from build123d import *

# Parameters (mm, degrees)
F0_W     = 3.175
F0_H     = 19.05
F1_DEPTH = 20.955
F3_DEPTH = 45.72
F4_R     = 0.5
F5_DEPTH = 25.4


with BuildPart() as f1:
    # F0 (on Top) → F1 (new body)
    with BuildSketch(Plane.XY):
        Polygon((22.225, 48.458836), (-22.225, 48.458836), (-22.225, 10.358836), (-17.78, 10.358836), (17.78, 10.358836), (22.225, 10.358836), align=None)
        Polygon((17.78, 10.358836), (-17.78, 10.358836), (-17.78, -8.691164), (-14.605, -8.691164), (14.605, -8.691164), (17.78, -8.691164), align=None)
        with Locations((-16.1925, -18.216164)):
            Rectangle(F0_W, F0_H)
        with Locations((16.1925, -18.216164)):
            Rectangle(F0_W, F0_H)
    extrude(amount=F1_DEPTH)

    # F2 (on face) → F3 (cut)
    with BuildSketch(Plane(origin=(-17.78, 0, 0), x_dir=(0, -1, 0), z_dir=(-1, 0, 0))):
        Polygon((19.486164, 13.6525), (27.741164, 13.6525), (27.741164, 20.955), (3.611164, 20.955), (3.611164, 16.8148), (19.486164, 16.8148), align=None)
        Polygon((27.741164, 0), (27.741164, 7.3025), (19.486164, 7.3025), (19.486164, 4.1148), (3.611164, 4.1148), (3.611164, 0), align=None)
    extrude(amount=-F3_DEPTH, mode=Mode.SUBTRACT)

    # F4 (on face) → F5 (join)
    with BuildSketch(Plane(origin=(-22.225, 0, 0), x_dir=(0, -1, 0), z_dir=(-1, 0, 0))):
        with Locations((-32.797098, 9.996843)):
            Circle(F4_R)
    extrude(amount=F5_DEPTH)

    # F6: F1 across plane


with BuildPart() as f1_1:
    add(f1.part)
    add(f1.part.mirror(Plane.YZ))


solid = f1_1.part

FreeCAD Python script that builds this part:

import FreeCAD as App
import Part
import Sketcher
from FreeCAD import Vector
Q = App.Units.Quantity


def add_polygon(sketch, points):
    """Adds a closed chain of lines whose ends are joined by coincident constraints."""
    first, n = sketch.GeometryCount, len(points)
    for a, b in zip(points, points[1:] + points[:1]):
        sketch.addGeometry(Part.LineSegment(App.Vector(*a, 0), App.Vector(*b, 0)), False)
    for i in range(n):
        sketch.addConstraint(Sketcher.Constraint("Coincident", first + i, 2, first + (i + 1) % n, 1))

doc = App.newDocument("Part")
params = doc.addObject("Spreadsheet::Sheet", "Params")
for row, (alias, value) in enumerate([
    ("sketch1_height", "1.5 in"),
    ("sketch1_width", "1.75 in"),
    ("sketch1_width2", "1.15 in"),
    ("sketch1_height2", "0.75 in"),
    ("pad1_length", "0.825 in"),
    ("sketch2_width", "0.95 in"),
    ("sketch2_width2", "0.325 in"),
    ("sketch2_height", "0.163 in"),
    ("sketch2_height2", "0.162 in"),
    ("pocket1_length", "1.8 in"),
    ("pad2_length", "1 in"),
], start=1):
    params.set(f"A{row}", alias)
    params.set(f"B{row}", "=" + value)
    params.setAlias(f"B{row}", alias)

body = doc.addObject("PartDesign::Body", "Body")

sketch1 = body.newObject("Sketcher::SketchObject", "Sketch")
sketch1.AttachmentSupport = (doc.getObject("XY_Plane"), [""])
sketch1.MapMode = "FlatFace"
add_polygon(sketch1, [(22.2, 48.5), (-22.2, 48.5), (-22.2, 10.4), (-17.8, 10.4), (-17.8, -27.7), (-14.6, -27.7), (-14.6, -8.7), (14.6, -8.7), (14.6, -27.7), (17.8, -27.7), (17.8, 10.4), (22.2, 10.4)])
sketch1.addConstraint([
    Sketcher.Constraint("Horizontal", 0),
    Sketcher.Constraint("Vertical", 1),
    Sketcher.Constraint("Horizontal", 2),
    Sketcher.Constraint("Vertical", 3),
    Sketcher.Constraint("Horizontal", 4),
    Sketcher.Constraint("Vertical", 5),
    Sketcher.Constraint("Horizontal", 6),
    Sketcher.Constraint("Vertical", 7),
    Sketcher.Constraint("Horizontal", 8),
    Sketcher.Constraint("Vertical", 9),
    Sketcher.Constraint("Horizontal", 10),
    Sketcher.Constraint("Vertical", 11),
    Sketcher.Constraint("Symmetric", 4, 2, 7, 2, -2),
    Sketcher.Constraint("Symmetric", 2, 2, 9, 2, -2),
    Sketcher.Constraint("Equal", 2, 10),
    Sketcher.Constraint("Equal", 1, 3),
    Sketcher.Constraint("DistanceY", 1, 2, 1, 1, Q("1.5 in")),
    Sketcher.Constraint("DistanceX", 0, 2, 0, 1, Q("1.75 in")),
    Sketcher.Constraint("DistanceX", 6, 1, 6, 2, Q("1.15 in")),
    Sketcher.Constraint("DistanceY", 5, 1, 5, 2, Q("0.75 in")),
    Sketcher.Constraint("DistanceX", 2, 2, -1, 1, Q("0.7 in")),
    Sketcher.Constraint("DistanceY", -1, 1, 0, 2, 48.458836),
])
sketch1.setExpression("Constraints[28]", "Params.sketch1_height")
sketch1.setExpression("Constraints[29]", "Params.sketch1_width")
sketch1.setExpression("Constraints[30]", "Params.sketch1_width2")
sketch1.setExpression("Constraints[31]", "Params.sketch1_height2")
pad1 = body.newObject("PartDesign::Pad", "Pad")
pad1.Profile = sketch1
pad1.setExpression("Length", "Params.pad1_length")

sketch2 = body.newObject("Sketcher::SketchObject", "Sketch001")
sketch2.AttachmentSupport = (doc.getObject("YZ_Plane"), [""])
sketch2.MapMode = "FlatFace"
sketch2.AttachmentOffset = App.Placement(Vector(0, 0, -0.7 * 25.4), App.Rotation())
add_polygon(sketch2, [(-19.5, 13.7), (-27.7, 13.7), (-27.7, 21), (-3.6, 21), (-3.6, 16.8), (-19.5, 16.8)])
add_polygon(sketch2, [(-27.7, 0), (-27.7, 7.3), (-19.5, 7.3), (-19.5, 4.1), (-3.6, 4.1), (-3.6, 0)])
sketch2.addConstraint([
    Sketcher.Constraint("Horizontal", 0),
    Sketcher.Constraint("Vertical", 1),
    Sketcher.Constraint("Horizontal", 2),
    Sketcher.Constraint("Vertical", 3),
    Sketcher.Constraint("Horizontal", 4),
    Sketcher.Constraint("Vertical", 5),
    Sketcher.Constraint("Vertical", 6),
    Sketcher.Constraint("Horizontal", 7),
    Sketcher.Constraint("Vertical", 8),
    Sketcher.Constraint("Horizontal", 9),
    Sketcher.Constraint("Vertical", 10),
    Sketcher.Constraint("Horizontal", 11),
    Sketcher.Constraint("PointOnObject", 10, 2, -1),
    Sketcher.Constraint("Vertical", 1, 2, 6, 2),
    Sketcher.Constraint("Vertical", 5, 2, 7, 2),
    Sketcher.Constraint("Vertical", 3, 2, 9, 2),
    Sketcher.Constraint("Equal", 1, 6),
    Sketcher.Constraint("DistanceX", 2, 1, 2, 2, Q("0.95 in")),
    Sketcher.Constraint("DistanceY", 8, 2, 4, 2, Q("0.5 in")),
    Sketcher.Constraint("DistanceX", 0, 2, 0, 1, Q("0.325 in")),
    Sketcher.Constraint("DistanceY", 3, 2, 3, 1, Q("0.163 in")),
    Sketcher.Constraint("DistanceY", 10, 2, 10, 1, Q("0.162 in")),
    Sketcher.Constraint("DistanceY", 6, 2, 0, 2, Q("0.25 in")),
    Sketcher.Constraint("DistanceX", 0, 2, -1, 1, 27.741164),
])
sketch2.setExpression("Constraints[29]", "Params.sketch2_width")
sketch2.setExpression("Constraints[31]", "Params.sketch2_width2")
sketch2.setExpression("Constraints[32]", "Params.sketch2_height")
sketch2.setExpression("Constraints[33]", "Params.sketch2_height2")
pocket1 = body.newObject("PartDesign::Pocket", "Pocket")
pocket1.Profile = sketch2
pocket1.setExpression("Length", "Params.pocket1_length")
pocket1.Reversed = True

sketch3 = body.newObject("Sketcher::SketchObject", "Sketch002")
sketch3.AttachmentSupport = (doc.getObject("YZ_Plane"), [""])
sketch3.MapMode = "FlatFace"
sketch3.AttachmentOffset = App.Placement(Vector(0, 0, -0.875 * 25.4), App.Rotation())
sketch3.addGeometry(Part.Circle(Vector(32.8, 10, 0), Vector(0, 0, 1), 0.5), False)
sketch3.addConstraint([
    Sketcher.Constraint("Diameter", 0, 1.0),
    Sketcher.Constraint("DistanceX", -1, 1, 0, 3, 32.797098),
    Sketcher.Constraint("DistanceY", -1, 1, 0, 3, 9.996843),
])
pad2 = body.newObject("PartDesign::Pad", "Pad001")
pad2.Profile = sketch3
pad2.setExpression("Length", "Params.pad2_length")
pad2.Reversed = True
body2 = doc.addObject("PartDesign::Body", "Body001")
doc.recompute()

body2.BaseFeature = body
doc.recompute()

mirroring = doc.addObject("Part::Mirroring", "Mirroring")
mirroring.Source = body
mirroring.Base = Vector(0, 0, 0)
mirroring.Normal = Vector(1, 0, 0)
body3 = doc.addObject("PartDesign::Body", "Body002")
body3.BaseFeature = mirroring
boolean = body2.newObject("PartDesign::Boolean", "Boolean")
boolean.Type = "Fuse"
boolean.addObjects([body3])
doc.recompute()
mirroring.Visibility = False

doc.recompute()
